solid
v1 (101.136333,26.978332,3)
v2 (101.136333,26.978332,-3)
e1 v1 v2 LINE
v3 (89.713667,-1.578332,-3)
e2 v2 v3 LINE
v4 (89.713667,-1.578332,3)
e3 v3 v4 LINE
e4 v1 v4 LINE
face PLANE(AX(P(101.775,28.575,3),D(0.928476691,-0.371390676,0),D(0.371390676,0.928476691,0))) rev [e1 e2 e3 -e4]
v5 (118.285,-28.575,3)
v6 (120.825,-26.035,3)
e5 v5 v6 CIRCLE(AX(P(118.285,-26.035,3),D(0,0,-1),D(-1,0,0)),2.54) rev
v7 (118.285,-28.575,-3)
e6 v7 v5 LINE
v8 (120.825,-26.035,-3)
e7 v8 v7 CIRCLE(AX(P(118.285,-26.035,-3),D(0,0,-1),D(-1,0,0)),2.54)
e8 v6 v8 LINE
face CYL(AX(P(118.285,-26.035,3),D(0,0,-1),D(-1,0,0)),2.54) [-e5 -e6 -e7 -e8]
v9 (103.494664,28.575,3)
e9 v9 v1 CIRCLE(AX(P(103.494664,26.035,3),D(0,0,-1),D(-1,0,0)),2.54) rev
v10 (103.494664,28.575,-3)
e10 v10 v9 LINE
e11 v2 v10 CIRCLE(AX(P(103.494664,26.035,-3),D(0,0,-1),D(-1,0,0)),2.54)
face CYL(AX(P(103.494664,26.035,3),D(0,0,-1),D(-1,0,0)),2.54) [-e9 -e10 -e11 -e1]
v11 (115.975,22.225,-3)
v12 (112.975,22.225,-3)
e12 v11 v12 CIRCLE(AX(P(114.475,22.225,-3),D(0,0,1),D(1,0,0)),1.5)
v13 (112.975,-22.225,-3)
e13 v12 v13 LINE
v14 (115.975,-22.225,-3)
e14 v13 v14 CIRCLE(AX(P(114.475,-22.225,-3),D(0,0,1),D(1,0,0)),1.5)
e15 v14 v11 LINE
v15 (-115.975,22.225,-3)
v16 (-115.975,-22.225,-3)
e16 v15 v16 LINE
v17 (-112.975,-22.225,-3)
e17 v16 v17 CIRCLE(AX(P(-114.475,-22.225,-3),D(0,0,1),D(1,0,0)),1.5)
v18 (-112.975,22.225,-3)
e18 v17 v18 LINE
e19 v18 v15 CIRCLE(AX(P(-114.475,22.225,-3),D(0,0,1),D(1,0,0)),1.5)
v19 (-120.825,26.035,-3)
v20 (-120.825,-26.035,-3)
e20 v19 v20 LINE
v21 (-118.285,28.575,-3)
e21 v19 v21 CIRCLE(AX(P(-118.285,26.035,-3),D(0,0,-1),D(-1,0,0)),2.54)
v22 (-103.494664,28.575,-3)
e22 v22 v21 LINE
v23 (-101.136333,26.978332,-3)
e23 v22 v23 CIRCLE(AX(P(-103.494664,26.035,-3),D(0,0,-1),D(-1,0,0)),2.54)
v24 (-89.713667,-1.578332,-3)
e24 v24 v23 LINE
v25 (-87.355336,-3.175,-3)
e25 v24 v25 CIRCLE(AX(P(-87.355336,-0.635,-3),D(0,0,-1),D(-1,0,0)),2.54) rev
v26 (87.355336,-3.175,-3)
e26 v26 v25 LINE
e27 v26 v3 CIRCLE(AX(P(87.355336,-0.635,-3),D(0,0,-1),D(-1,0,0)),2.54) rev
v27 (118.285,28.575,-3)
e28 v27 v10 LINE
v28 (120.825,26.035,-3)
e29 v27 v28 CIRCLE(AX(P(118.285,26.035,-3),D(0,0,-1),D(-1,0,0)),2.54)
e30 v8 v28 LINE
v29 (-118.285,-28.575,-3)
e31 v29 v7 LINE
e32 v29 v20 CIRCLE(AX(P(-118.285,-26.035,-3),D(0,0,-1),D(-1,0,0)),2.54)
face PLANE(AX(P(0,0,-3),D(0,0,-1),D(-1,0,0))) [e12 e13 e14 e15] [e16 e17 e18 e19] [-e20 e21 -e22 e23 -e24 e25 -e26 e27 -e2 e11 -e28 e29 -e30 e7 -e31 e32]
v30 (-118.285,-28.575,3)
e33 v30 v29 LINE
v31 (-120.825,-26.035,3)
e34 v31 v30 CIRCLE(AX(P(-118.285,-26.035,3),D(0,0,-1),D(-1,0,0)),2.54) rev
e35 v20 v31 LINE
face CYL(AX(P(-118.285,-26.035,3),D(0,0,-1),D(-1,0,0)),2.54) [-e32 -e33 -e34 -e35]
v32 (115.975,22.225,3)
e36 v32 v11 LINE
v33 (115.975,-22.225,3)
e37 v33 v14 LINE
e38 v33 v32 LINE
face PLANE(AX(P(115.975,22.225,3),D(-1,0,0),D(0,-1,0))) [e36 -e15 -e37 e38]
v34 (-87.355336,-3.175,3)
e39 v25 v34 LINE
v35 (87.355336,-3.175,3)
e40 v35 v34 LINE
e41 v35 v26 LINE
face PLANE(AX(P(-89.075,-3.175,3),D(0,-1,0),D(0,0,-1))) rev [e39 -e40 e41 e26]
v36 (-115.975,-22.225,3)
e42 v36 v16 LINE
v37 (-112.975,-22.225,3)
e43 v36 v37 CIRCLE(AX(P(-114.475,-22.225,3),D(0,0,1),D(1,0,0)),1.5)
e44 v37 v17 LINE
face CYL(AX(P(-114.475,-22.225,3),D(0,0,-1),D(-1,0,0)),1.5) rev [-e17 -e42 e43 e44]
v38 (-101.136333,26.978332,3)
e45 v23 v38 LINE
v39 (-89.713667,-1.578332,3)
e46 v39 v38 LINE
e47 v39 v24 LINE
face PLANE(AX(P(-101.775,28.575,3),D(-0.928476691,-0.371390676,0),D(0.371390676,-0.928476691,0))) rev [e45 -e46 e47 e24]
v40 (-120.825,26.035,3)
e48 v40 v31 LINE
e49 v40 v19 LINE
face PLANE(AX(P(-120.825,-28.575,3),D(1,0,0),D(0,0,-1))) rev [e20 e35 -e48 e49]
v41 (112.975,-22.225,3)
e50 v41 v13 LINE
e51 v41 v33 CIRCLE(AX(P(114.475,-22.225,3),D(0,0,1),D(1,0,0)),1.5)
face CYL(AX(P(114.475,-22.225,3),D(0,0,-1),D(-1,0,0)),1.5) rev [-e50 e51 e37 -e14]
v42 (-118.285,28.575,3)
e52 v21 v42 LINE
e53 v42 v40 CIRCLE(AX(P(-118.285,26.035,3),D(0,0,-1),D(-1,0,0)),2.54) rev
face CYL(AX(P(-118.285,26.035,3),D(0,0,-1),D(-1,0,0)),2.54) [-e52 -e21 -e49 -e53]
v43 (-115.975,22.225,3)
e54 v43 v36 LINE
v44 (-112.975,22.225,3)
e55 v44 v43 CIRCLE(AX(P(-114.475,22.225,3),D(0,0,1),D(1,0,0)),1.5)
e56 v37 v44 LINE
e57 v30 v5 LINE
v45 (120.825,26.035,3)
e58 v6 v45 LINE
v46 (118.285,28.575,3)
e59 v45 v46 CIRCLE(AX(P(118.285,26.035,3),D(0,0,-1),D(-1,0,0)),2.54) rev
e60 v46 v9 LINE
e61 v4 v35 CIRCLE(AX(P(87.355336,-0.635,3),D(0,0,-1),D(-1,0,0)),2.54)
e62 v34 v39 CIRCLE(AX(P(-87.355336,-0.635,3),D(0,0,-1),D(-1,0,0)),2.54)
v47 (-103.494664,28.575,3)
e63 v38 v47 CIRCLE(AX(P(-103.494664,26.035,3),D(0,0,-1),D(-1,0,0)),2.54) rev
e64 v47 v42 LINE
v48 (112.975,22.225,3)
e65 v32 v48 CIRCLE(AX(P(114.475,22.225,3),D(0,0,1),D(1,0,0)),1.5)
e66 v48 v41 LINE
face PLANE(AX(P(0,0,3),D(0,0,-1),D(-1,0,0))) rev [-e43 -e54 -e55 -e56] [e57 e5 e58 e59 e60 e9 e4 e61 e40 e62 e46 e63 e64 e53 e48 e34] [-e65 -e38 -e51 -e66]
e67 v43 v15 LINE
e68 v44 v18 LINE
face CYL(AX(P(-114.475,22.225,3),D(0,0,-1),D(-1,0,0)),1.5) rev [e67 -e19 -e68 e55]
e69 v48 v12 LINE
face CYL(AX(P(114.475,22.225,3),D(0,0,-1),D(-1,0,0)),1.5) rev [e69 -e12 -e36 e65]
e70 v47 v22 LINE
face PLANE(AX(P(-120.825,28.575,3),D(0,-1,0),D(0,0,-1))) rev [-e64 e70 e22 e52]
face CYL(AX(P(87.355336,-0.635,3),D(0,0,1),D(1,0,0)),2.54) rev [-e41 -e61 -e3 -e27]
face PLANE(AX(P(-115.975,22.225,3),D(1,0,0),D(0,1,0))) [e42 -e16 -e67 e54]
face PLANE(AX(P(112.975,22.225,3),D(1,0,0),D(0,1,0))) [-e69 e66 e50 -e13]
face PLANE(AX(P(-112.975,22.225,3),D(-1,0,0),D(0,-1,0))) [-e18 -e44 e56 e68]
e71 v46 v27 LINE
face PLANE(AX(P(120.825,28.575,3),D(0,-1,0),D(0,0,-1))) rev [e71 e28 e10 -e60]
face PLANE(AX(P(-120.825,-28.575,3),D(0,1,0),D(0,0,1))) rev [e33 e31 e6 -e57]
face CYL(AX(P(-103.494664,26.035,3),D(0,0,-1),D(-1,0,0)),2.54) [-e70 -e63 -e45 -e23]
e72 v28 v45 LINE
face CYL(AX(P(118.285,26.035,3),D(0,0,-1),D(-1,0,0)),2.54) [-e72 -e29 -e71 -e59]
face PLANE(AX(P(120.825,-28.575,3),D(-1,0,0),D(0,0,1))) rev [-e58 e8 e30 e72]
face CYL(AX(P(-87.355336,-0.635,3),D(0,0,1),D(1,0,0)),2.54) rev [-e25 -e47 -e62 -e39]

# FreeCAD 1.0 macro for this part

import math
import FreeCAD as App
import Part
import Sketcher
Q = App.Units.Quantity


def edges_at(feature, points):
    """Names of the edges that pass closest to the given points."""
    edges = feature.Shape.Edges
    near = lambda p: min(range(len(edges)), key=lambda i: edges[i].distToShape(Part.Vertex(*p))[0])
    return sorted({f"Edge{near(p) + 1}" for p in points})


def add_polygon(sketch, points):
    """Adds a closed chain of lines whose ends are joined by coincident constraints."""
    first, n = sketch.GeometryCount, len(points)
    for a, b in zip(points, points[1:] + points[:1]):
        sketch.addGeometry(Part.LineSegment(App.Vector(*a, 0), App.Vector(*b, 0)), False)
    for i in range(n):
        sketch.addConstraint(Sketcher.Constraint("Coincident", first + i, 2, first + (i + 1) % n, 1))

doc = App.newDocument("Part")
params = doc.addObject("Spreadsheet::Sheet", "Params")
for row, (alias, value) in enumerate([
    ("sketch1_width", "0.75 in"),
    ("sketch1_height", "2.25 in"),
    ("pad1_length", "6 mm"),
    ("fillet_radius", "0.1 in"),
], start=1):
    params.set(f"A{row}", alias)
    params.set(f"B{row}", "=" + value)
    params.setAlias(f"B{row}", alias)

body = doc.addObject("PartDesign::Body", "Body")

sketch1 = body.newObject("Sketcher::SketchObject", "Sketch")
sketch1.AttachmentSupport = (doc.getObject("XY_Plane"), [""])
sketch1.MapMode = "FlatFace"
add_polygon(sketch1, [(-120.8, 28.6), (-120.8, -28.6), (120.8, -28.6), (120.8, 28.6), (101.8, 28.6), (89.1, -3.2), (-89.1, -3.2), (-101.8, 28.6)])
sketch1.addGeometry(Part.LineSegment(App.Vector(116, 22.2, 0), App.Vector(116, -22.2, 0)), False)
sketch1.addGeometry(Part.ArcOfCircle(Part.Circle(App.Vector(114.5, -22.2, 0), App.Vector(0, 0, 1), 1.5), math.radians(180), math.radians(360)), False)
sketch1.addGeometry(Part.LineSegment(App.Vector(113, -22.2, 0), App.Vector(113, 22.2, 0)), False)
sketch1.addGeometry(Part.ArcOfCircle(Part.Circle(App.Vector(114.5, 22.2, 0), App.Vector(0, 0, 1), 1.5), math.radians(0), math.radians(180)), False)
sketch1.addGeometry(Part.LineSegment(App.Vector(-113, 22.2, 0), App.Vector(-113, -22.2, 0)), False)
sketch1.addGeometry(Part.ArcOfCircle(Part.Circle(App.Vector(-114.5, -22.2, 0), App.Vector(0, 0, 1), 1.5), math.radians(180), math.radians(360)), False)
sketch1.addGeometry(Part.LineSegment(App.Vector(-116, -22.2, 0), App.Vector(-116, 22.2, 0)), False)
sketch1.addGeometry(Part.ArcOfCircle(Part.Circle(App.Vector(-114.5, 22.2, 0), App.Vector(0, 0, 1), 1.5), math.radians(0), math.radians(180)), False)
sketch1.addConstraint([
    Sketcher.Constraint("Tangent", 8, 2, 9, 2),
    Sketcher.Constraint("Tangent", 9, 1, 10, 1),
    Sketcher.Constraint("Tangent", 10, 2, 11, 2),
    Sketcher.Constraint("Tangent", 11, 1, 8, 1),
    Sketcher.Constraint("Tangent", 12, 2, 13, 2),
    Sketcher.Constraint("Tangent", 13, 1, 14, 1),
    Sketcher.Constraint("Tangent", 14, 2, 15, 2),
    Sketcher.Constraint("Tangent", 15, 1, 12, 1),
    Sketcher.Constraint("Vertical", 0),
    Sketcher.Constraint("Horizontal", 1),
    Sketcher.Constraint("Vertical", 2),
    Sketcher.Constraint("Horizontal", 3),
    Sketcher.Constraint("Horizontal", 5),
    Sketcher.Constraint("Horizontal", 7),
    Sketcher.Constraint("Vertical", 8),
    Sketcher.Constraint("Vertical", 10),
    Sketcher.Constraint("Vertical", 12),
    Sketcher.Constraint("Vertical", 14),
    Sketcher.Constraint("Equal", 11, 13),
    Sketcher.Constraint("Symmetric", 11, 3, 13, 3, -1, 1),
    Sketcher.Constraint("Symmetric", 0, 2, 2, 2, -1, 1),
    Sketcher.Constraint("Symmetric", 3, 2, 6, 2, -2),
    Sketcher.Constraint("Horizontal", 9, 3, 13, 3),
    Sketcher.Constraint("Horizontal", 11, 3, 15, 3),
    Sketcher.Constraint("Equal", 4, 6),
    Sketcher.Constraint("DistanceY", 0, 2, 15, 3, Q("2 in")),
    Sketcher.Constraint("DistanceX", 4, 2, 9, 3, Q("1 in")),
    Sketcher.Constraint("DistanceY", 4, 2, 11, 3, Q("1 in")),
    Sketcher.Constraint("DistanceX", 3, 2, 3, 1, Q("0.75 in")),
    Sketcher.Constraint("DistanceY", 0, 2, 0, 1, Q("2.25 in")),
    Sketcher.Constraint("DistanceX", 3, 2, 11, 3, Q("0.5 in")),
    Sketcher.Constraint("Radius", 9, Q("1.5 mm")),
    Sketcher.Constraint("DistanceX", 1, 1, 1, 2, Q("241.65 mm")),
])
sketch1.setExpression("Constraints[36]", "Params.sketch1_width")
sketch1.setExpression("Constraints[37]", "Params.sketch1_height")
pad1 = body.newObject("PartDesign::Pad", "Pad")
pad1.Profile = sketch1
pad1.setExpression("Length", "Params.pad1_length")
pad1.Midplane = True
doc.recompute()

fillet = body.newObject("PartDesign::Fillet", "Fillet")
fillet.Base = (pad1, edges_at(pad1, [
    (120.825, 28.575, 0),
    (120.825, -28.575, 0),
    (-120.825, -28.575, 0),
    (-120.825, 28.575, 0),
    (-101.775, 28.575, 0),
    (-89.075, -3.175, 0),
    (89.075, -3.175, 0),
    (101.775, 28.575, 0),
]))
fillet.setExpression("Radius", "Params.fillet_radius")

doc.recompute()
